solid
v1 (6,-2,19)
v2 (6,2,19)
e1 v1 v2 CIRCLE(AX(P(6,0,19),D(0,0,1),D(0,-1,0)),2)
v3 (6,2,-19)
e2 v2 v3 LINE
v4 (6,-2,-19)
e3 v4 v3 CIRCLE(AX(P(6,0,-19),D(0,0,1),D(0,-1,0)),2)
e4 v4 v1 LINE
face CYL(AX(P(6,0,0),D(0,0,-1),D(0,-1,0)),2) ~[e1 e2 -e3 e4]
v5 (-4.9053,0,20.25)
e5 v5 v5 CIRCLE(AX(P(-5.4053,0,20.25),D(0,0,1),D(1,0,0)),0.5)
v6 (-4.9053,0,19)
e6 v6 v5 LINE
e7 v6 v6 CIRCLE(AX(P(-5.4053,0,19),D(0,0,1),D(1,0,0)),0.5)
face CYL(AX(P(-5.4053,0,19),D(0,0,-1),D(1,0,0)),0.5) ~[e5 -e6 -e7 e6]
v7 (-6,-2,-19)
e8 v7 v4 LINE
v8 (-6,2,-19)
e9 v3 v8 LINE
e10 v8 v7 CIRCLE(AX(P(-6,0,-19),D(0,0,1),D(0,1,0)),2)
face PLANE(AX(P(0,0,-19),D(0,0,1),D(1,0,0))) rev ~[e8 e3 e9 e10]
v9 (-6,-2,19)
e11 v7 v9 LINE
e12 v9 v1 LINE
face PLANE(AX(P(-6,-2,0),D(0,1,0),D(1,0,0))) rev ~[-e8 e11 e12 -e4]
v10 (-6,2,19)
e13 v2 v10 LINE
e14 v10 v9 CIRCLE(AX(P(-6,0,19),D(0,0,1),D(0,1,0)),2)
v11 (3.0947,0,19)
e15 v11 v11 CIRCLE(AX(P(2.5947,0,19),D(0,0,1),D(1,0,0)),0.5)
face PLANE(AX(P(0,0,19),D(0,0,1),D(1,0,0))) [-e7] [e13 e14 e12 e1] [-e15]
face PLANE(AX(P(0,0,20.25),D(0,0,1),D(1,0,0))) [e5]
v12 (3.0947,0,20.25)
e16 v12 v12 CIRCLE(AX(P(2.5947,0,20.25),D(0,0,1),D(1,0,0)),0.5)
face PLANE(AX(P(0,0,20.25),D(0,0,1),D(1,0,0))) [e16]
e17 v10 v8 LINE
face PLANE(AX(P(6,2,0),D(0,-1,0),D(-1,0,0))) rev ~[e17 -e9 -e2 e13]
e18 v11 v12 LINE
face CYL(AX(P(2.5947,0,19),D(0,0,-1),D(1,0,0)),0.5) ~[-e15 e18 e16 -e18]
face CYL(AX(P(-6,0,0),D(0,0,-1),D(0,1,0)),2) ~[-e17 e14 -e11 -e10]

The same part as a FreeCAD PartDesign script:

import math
import FreeCAD as App
import Part
import Sketcher
from FreeCAD import Vector

doc = App.newDocument("Part")
body = doc.addObject("PartDesign::Body", "Body")

sketch1 = doc.addObject("Sketcher::SketchObject", "Sketch")
body.addObject(sketch1)
sketch1.AttachmentSupport = (doc.XY_Plane, [""])
sketch1.MapMode = "FlatFace"
sketch1.addGeometry([
    Part.ArcOfCircle(Part.Circle(Vector(-6, 0, 0), Vector(0, 0, 1), 2), math.radians(90), math.radians(270)),
    Part.LineSegment(Vector(-6, -2, 0), Vector(6, -2, 0)),
    Part.ArcOfCircle(Part.Circle(Vector(6, 0, 0), Vector(0, 0, 1), 2), math.radians(-90), math.radians(90)),
    Part.LineSegment(Vector(6, 2, 0), Vector(-6, 2, 0)),
], False)
sketch1.addConstraint([
    Sketcher.Constraint("Tangent", 0, 2, 1, 1),
    Sketcher.Constraint("Tangent", 1, 2, 2, 1),
    Sketcher.Constraint("Tangent", 2, 2, 3, 1),
    Sketcher.Constraint("Tangent", 3, 2, 0, 1),
    Sketcher.Constraint("Horizontal", 1),
    Sketcher.Constraint("Horizontal", 3),
    Sketcher.Constraint("Symmetric", 0, 3, 2, 3, -1, 1),
    Sketcher.Constraint("Radius", 0, 2.0),
    Sketcher.Constraint("DistanceX", 1, 1, 1, 2, 12.0),
])
pad1 = doc.addObject("PartDesign::Pad", "Pad")
body.addObject(pad1)
pad1.Profile = sketch1
pad1.Length = 38
pad1.Midplane = True

sketch2 = doc.addObject("Sketcher::SketchObject", "Sketch001")
body.addObject(sketch2)
sketch2.AttachmentSupport = (doc.XY_Plane, [""])
sketch2.MapMode = "FlatFace"
sketch2.AttachmentOffset = App.Placement(Vector(0, 0, 19), App.Rotation())
sketch2.addGeometry([
    Part.Circle(Vector(2.6, 0, 0), Vector(0, 0, 1), 0.5),
    Part.Circle(Vector(-5.4, 0, 0), Vector(0, 0, 1), 0.5),
], False)
sketch2.addConstraint([
    Sketcher.Constraint("Equal", 0, 1),
    Sketcher.Constraint("PointOnObject", 0, 3, -1),
    Sketcher.Constraint("PointOnObject", 1, 3, -1),
    Sketcher.Constraint("Diameter", 0, 1.0),
    Sketcher.Constraint("DistanceX", 1, 3, 0, 3, 8.0),
    Sketcher.Constraint("DistanceX", -1, 1, 0, 3, 2.5947),
])
pad2 = doc.addObject("PartDesign::Pad", "Pad001")
body.addObject(pad2)
pad2.Profile = sketch2
pad2.Length = 1.25

doc.recompute()
